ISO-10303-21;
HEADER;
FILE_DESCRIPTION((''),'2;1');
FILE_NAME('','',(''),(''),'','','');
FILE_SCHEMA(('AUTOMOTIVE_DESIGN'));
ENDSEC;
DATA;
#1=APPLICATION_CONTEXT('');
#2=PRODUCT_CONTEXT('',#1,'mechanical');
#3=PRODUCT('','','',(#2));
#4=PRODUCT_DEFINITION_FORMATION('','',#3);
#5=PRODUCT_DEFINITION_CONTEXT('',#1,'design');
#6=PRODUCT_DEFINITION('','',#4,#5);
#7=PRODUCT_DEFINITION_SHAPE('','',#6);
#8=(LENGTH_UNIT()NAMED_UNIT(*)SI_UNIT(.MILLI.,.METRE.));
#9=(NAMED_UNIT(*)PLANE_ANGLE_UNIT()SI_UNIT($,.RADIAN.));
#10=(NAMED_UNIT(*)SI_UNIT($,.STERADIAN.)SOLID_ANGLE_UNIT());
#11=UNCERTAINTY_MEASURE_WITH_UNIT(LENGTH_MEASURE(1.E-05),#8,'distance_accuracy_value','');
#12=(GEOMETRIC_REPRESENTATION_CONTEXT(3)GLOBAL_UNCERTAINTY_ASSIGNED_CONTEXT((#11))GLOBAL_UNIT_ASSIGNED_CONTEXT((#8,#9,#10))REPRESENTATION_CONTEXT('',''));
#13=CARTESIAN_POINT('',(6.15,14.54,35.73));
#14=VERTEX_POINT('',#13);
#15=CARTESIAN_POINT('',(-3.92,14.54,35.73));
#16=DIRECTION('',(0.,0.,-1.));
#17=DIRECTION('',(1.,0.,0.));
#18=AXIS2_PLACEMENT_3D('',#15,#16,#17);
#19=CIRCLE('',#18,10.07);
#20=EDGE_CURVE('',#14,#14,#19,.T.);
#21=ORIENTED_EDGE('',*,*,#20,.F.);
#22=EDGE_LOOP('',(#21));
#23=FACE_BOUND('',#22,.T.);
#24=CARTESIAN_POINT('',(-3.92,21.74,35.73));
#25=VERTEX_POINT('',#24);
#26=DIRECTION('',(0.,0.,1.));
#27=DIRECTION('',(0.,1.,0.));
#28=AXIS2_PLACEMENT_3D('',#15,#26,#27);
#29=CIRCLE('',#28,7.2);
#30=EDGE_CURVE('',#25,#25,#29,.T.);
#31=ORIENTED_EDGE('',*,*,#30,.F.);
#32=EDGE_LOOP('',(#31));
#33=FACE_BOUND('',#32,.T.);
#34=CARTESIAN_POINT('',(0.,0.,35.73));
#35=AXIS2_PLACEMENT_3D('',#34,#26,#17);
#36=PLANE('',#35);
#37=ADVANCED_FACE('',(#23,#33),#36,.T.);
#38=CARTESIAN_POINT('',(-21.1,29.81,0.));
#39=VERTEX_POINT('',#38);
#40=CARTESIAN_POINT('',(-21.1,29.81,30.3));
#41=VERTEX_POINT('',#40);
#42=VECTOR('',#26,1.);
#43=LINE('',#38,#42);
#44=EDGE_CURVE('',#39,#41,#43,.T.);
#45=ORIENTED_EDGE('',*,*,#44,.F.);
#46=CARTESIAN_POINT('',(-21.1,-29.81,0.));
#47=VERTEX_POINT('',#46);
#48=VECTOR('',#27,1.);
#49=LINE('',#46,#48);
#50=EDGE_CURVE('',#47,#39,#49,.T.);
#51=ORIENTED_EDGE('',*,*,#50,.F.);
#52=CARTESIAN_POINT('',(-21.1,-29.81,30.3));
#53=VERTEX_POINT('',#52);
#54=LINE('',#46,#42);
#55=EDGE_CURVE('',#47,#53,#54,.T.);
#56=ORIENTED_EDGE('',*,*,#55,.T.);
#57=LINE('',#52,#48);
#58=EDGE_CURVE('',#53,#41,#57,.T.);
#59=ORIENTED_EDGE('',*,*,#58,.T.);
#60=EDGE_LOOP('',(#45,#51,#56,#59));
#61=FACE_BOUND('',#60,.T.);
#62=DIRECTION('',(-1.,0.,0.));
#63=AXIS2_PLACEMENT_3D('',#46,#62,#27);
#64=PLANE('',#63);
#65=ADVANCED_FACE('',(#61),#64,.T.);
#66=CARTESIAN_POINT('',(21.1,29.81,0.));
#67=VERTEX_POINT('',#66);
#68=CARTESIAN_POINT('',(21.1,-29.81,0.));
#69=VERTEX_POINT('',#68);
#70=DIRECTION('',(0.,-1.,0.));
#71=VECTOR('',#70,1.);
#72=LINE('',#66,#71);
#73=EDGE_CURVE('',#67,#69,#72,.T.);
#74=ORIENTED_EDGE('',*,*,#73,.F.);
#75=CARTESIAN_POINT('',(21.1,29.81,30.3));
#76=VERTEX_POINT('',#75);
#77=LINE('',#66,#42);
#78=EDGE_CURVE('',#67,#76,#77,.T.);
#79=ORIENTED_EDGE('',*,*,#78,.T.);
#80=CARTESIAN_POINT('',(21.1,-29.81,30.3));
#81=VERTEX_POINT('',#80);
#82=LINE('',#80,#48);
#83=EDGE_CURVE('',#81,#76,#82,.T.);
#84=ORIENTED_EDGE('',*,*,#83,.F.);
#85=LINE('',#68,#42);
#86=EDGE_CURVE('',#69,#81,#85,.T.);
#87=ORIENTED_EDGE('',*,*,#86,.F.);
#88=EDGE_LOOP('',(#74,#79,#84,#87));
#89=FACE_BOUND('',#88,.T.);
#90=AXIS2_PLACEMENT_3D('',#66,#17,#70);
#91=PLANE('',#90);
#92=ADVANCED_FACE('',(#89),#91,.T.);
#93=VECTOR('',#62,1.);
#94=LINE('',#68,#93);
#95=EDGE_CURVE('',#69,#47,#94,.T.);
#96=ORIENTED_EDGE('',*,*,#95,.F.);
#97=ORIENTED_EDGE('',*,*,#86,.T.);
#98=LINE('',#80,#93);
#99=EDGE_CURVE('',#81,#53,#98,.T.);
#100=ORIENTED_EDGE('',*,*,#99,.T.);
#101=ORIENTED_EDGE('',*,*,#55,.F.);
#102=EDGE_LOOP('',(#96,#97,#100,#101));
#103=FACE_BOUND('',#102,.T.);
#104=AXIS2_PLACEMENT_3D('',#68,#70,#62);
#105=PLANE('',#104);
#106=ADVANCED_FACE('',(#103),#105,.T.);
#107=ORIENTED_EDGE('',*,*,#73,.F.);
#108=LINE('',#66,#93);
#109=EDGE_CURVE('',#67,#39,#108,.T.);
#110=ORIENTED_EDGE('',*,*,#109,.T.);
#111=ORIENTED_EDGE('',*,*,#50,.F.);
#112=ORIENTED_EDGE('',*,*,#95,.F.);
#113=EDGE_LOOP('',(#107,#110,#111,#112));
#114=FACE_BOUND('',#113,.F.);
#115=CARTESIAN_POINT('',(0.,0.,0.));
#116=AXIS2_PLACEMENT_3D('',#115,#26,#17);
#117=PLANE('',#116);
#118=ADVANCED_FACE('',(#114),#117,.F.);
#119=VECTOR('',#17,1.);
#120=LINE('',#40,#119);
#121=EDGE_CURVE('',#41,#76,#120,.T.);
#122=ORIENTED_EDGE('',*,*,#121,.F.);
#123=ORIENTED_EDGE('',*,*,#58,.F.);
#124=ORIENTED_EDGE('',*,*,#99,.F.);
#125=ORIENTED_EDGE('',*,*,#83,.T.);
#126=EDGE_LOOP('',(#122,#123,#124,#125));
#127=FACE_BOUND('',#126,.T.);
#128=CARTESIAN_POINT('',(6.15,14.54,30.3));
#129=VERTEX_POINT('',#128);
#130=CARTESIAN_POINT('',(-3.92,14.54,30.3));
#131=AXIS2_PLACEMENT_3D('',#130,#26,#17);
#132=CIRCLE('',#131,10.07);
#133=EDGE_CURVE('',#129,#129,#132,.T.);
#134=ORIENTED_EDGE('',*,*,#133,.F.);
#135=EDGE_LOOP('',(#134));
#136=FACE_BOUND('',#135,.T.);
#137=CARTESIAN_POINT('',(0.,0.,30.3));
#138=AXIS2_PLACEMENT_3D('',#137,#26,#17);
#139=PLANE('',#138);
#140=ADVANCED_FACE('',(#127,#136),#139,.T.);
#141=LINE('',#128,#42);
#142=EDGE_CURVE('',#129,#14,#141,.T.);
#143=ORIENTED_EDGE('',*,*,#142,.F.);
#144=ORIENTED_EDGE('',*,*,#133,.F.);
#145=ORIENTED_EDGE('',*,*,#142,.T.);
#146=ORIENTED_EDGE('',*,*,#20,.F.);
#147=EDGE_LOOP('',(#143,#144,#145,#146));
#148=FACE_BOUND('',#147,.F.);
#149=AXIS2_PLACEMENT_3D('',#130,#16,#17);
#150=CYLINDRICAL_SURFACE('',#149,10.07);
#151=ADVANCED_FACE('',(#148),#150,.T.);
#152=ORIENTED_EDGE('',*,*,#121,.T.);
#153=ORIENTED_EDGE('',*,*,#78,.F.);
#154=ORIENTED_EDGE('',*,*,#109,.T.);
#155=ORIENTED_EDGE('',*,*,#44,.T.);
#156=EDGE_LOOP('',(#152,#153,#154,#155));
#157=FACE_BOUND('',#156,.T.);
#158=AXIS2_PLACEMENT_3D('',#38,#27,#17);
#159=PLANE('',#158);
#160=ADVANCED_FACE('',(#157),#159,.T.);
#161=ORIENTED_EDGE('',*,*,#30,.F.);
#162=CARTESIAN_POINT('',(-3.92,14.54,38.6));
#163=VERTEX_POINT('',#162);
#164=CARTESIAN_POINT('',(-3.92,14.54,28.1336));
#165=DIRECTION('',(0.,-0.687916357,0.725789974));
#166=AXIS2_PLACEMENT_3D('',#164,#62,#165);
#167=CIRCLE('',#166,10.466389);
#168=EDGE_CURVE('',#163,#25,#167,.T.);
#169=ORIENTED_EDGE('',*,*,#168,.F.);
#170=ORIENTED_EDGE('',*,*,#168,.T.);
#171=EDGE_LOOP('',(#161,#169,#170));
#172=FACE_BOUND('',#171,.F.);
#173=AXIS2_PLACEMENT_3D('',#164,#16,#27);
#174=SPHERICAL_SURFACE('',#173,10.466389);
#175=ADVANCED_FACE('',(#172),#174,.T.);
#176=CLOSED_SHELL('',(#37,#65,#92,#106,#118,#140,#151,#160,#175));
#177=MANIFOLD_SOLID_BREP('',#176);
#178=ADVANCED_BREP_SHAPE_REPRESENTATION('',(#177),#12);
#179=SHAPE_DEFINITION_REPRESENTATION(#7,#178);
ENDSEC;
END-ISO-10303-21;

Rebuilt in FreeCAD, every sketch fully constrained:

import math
import FreeCAD as App
import Part
import Sketcher

V = App.Vector

doc = App.newDocument("Part")
params = doc.addObject("Spreadsheet::Sheet", "Params")
for row, (alias, value) in enumerate([
    ("sketch1_width", "42.2 mm"),
    ("sketch1_height", "59.62 mm"),
    ("pad1_length", "30.3 mm"),
    ("sketch2_height", "7.73 mm"),
    ("sketch2_width", "10.07 mm"),
    ("revolution_angle", "360 deg"),
    ("sketch3_diameter", "20.14 mm"),
    ("pad2_length", "5.43 mm"),
    ("sketch4_width", "20.14 mm"),
    ("pocket1_length", "400 mm"),
    ("sketch5_height", "2.87 mm"),
    ("sketch5_width", "7.2 mm"),
    ("revolution2_angle", "360 deg"),
], start=1):
    params.set(f"A{row}", alias)
    params.set(f"B{row}", "=" + value)
    params.setAlias(f"B{row}", alias)

body = doc.addObject("PartDesign::Body", "Body")

sketch1 = body.newObject("Sketcher::SketchObject", "Sketch")
sketch1.AttachmentSupport = (doc.getObject("XY_Plane"), [""])
sketch1.MapMode = "FlatFace"
sketch1.addGeometry([
    Part.LineSegment(V(-21, 30, 0), V(-21, -30, 0)),
    Part.LineSegment(V(-21, -30, 0), V(21, -30, 0)),
    Part.LineSegment(V(21, -30, 0), V(21, 30, 0)),
    Part.LineSegment(V(21, 30, 0), V(-21, 30, 0)),
], False)
sketch1.addConstraint([
    Sketcher.Constraint("Coincident", 0, 2, 1, 1),
    Sketcher.Constraint("Coincident", 1, 2, 2, 1),
    Sketcher.Constraint("Coincident", 2, 2, 3, 1),
    Sketcher.Constraint("Coincident", 3, 2, 0, 1),
    Sketcher.Constraint("Vertical", 0),
    Sketcher.Constraint("Horizontal", 1),
    Sketcher.Constraint("Vertical", 2),
    Sketcher.Constraint("Horizontal", 3),
    Sketcher.Constraint("Symmetric", 0, 2, 2, 2, -1, 1),
    Sketcher.Constraint("DistanceX", 1, 1, 1, 2, 42.2),
    Sketcher.Constraint("DistanceY", 0, 2, 0, 1, 59.62),
])
sketch1.setExpression("Constraints[9]", "Params.sketch1_width")
sketch1.setExpression("Constraints[10]", "Params.sketch1_height")
pad1 = body.newObject("PartDesign::Pad", "Pad")
pad1.Profile = sketch1
pad1.setExpression("Length", "Params.pad1_length")

sketch2 = body.newObject("Sketcher::SketchObject", "Sketch001")
sketch2.AttachmentSupport = (doc.getObject("YZ_Plane"), [""])
sketch2.MapMode = "FlatFace"
sketch2.AttachmentOffset = App.Placement(V(0, 0, -3.92), App.Rotation())
sketch2.addGeometry([
    Part.LineSegment(V(15, 38, 0), V(15, 30, 0)),
    Part.LineSegment(V(15, 30, 0), V(4, 30, 0)),
    Part.ArcOfCircle(Part.Circle(V(15, 28, 0), V(0, 0, 1), 10), math.radians(90), math.radians(165)),
], False)
sketch2.addGeometry(Part.LineSegment(V(15, 28, 0), V(15, 38, 0)), True)
sketch2.addConstraint([
    Sketcher.Constraint("Coincident", 0, 2, 1, 1),
    Sketcher.Constraint("Coincident", 1, 2, 2, 2),
    Sketcher.Constraint("Coincident", 2, 1, 0, 1),
    Sketcher.Constraint("Vertical", 0),
    Sketcher.Constraint("Horizontal", 1),
    Sketcher.Constraint("Vertical", 3),
    Sketcher.Constraint("Coincident", 3, 1, 2, 3),
    Sketcher.Constraint("Coincident", 3, 2, 2, 1),
    Sketcher.Constraint("DistanceY", 0, 2, 0, 1, 7.73),
    Sketcher.Constraint("DistanceX", 1, 2, 1, 1, 10.07),
    Sketcher.Constraint("DistanceY", -1, 1, 0, 2, 30.3),
    Sketcher.Constraint("DistanceX", -1, 1, 2, 3, 14.54),
])
sketch2.setExpression("Constraints[8]", "Params.sketch2_height")
sketch2.setExpression("Constraints[9]", "Params.sketch2_width")
revolution = body.newObject("PartDesign::Revolution", "Revolution")
revolution.Profile = sketch2
revolution.ReferenceAxis = (sketch2, ["Axis0"])
revolution.setExpression("Angle", "Params.revolution_angle")

sketch3 = body.newObject("Sketcher::SketchObject", "Sketch002")
sketch3.AttachmentSupport = (doc.getObject("XY_Plane"), [""])
sketch3.MapMode = "FlatFace"
sketch3.AttachmentOffset = App.Placement(V(0, 0, 30.3), App.Rotation())
sketch3.addGeometry(Part.Circle(V(-4, 15, 0), V(0, 0, 1), 10), False)
sketch3.addConstraint([
    Sketcher.Constraint("Diameter", 0, 20.14),
    Sketcher.Constraint("DistanceX", 0, 3, -1, 1, 3.92),
    Sketcher.Constraint("DistanceY", -1, 1, 0, 3, 14.54),
])
sketch3.setExpression("Constraints[0]", "Params.sketch3_diameter")
pad2 = body.newObject("PartDesign::Pad", "Pad001")
pad2.Profile = sketch3
pad2.setExpression("Length", "Params.pad2_length")

sketch4 = body.newObject("Sketcher::SketchObject", "Sketch003")
sketch4.AttachmentSupport = (doc.getObject("YZ_Plane"), [""])
sketch4.MapMode = "FlatFace"
sketch4.AttachmentOffset = App.Placement(V(0, 0, 21.1), App.Rotation())
sketch4.addGeometry([
    Part.LineSegment(V(4, 46, 0), V(4, 36, 0)),
    Part.LineSegment(V(4, 36, 0), V(25, 36, 0)),
    Part.LineSegment(V(25, 36, 0), V(25, 46, 0)),
    Part.LineSegment(V(25, 46, 0), V(4, 46, 0)),
], False)
sketch4.addConstraint([
    Sketcher.Constraint("Coincident", 0, 2, 1, 1),
    Sketcher.Constraint("Coincident", 1, 2, 2, 1),
    Sketcher.Constraint("Coincident", 2, 2, 3, 1),
    Sketcher.Constraint("Coincident", 3, 2, 0, 1),
    Sketcher.Constraint("Vertical", 0),
    Sketcher.Constraint("Horizontal", 1),
    Sketcher.Constraint("Vertical", 2),
    Sketcher.Constraint("Horizontal", 3),
    Sketcher.Constraint("DistanceX", 1, 1, 1, 2, 20.14),
    Sketcher.Constraint("DistanceX", -1, 1, 0, 2, 4.47),
    Sketcher.Constraint("DistanceY", -1, 1, 0, 2, 35.73),
    Sketcher.Constraint("DistanceY", 0, 2, 0, 1, 10.3848),
])
sketch4.setExpression("Constraints[8]", "Params.sketch4_width")
pocket1 = body.newObject("PartDesign::Pocket", "Pocket")
pocket1.Profile = sketch4
pocket1.setExpression("Length", "Params.pocket1_length")

sketch5 = body.newObject("Sketcher::SketchObject", "Sketch004")
sketch5.AttachmentSupport = (doc.getObject("YZ_Plane"), [""])
sketch5.MapMode = "FlatFace"
sketch5.AttachmentOffset = App.Placement(V(0, 0, -3.92), App.Rotation())
sketch5.addGeometry([
    Part.ArcOfCircle(Part.Circle(V(14.5, 28.1, 0), V(0, 0, 1), 10.5), math.radians(47), math.radians(90)),
    Part.LineSegment(V(21.7, 35.7, 0), V(14.5, 35.7, 0)),
    Part.LineSegment(V(14.5, 35.7, 0), V(14.5, 38.6, 0)),
], False)
sketch5.addGeometry(Part.LineSegment(V(14.5, 28.1, 0), V(14.5, 38.6, 0)), True)
sketch5.addConstraint([
    Sketcher.Constraint("Coincident", 0, 1, 1, 1),
    Sketcher.Constraint("Coincident", 1, 2, 2, 1),
    Sketcher.Constraint("Coincident", 2, 2, 0, 2),
    Sketcher.Constraint("Horizontal", 1),
    Sketcher.Constraint("Vertical", 2),
    Sketcher.Constraint("Vertical", 3),
    Sketcher.Constraint("Coincident", 3, 1, 0, 3),
    Sketcher.Constraint("Coincident", 3, 2, 2, 2),
    Sketcher.Constraint("DistanceY", 2, 1, 2, 2, 2.87),
    Sketcher.Constraint("DistanceX", 1, 2, 1, 1, 7.2),
    Sketcher.Constraint("DistanceY", -1, 1, 2, 2, 38.6),
    Sketcher.Constraint("DistanceX", -1, 1, 0, 3, 14.54),
])
sketch5.setExpression("Constraints[8]", "Params.sketch5_height")
sketch5.setExpression("Constraints[9]", "Params.sketch5_width")
revolution2 = body.newObject("PartDesign::Revolution", "Revolution001")
revolution2.Profile = sketch5
revolution2.ReferenceAxis = (sketch5, ["Axis0"])
revolution2.setExpression("Angle", "Params.revolution2_angle")

doc.recompute()
